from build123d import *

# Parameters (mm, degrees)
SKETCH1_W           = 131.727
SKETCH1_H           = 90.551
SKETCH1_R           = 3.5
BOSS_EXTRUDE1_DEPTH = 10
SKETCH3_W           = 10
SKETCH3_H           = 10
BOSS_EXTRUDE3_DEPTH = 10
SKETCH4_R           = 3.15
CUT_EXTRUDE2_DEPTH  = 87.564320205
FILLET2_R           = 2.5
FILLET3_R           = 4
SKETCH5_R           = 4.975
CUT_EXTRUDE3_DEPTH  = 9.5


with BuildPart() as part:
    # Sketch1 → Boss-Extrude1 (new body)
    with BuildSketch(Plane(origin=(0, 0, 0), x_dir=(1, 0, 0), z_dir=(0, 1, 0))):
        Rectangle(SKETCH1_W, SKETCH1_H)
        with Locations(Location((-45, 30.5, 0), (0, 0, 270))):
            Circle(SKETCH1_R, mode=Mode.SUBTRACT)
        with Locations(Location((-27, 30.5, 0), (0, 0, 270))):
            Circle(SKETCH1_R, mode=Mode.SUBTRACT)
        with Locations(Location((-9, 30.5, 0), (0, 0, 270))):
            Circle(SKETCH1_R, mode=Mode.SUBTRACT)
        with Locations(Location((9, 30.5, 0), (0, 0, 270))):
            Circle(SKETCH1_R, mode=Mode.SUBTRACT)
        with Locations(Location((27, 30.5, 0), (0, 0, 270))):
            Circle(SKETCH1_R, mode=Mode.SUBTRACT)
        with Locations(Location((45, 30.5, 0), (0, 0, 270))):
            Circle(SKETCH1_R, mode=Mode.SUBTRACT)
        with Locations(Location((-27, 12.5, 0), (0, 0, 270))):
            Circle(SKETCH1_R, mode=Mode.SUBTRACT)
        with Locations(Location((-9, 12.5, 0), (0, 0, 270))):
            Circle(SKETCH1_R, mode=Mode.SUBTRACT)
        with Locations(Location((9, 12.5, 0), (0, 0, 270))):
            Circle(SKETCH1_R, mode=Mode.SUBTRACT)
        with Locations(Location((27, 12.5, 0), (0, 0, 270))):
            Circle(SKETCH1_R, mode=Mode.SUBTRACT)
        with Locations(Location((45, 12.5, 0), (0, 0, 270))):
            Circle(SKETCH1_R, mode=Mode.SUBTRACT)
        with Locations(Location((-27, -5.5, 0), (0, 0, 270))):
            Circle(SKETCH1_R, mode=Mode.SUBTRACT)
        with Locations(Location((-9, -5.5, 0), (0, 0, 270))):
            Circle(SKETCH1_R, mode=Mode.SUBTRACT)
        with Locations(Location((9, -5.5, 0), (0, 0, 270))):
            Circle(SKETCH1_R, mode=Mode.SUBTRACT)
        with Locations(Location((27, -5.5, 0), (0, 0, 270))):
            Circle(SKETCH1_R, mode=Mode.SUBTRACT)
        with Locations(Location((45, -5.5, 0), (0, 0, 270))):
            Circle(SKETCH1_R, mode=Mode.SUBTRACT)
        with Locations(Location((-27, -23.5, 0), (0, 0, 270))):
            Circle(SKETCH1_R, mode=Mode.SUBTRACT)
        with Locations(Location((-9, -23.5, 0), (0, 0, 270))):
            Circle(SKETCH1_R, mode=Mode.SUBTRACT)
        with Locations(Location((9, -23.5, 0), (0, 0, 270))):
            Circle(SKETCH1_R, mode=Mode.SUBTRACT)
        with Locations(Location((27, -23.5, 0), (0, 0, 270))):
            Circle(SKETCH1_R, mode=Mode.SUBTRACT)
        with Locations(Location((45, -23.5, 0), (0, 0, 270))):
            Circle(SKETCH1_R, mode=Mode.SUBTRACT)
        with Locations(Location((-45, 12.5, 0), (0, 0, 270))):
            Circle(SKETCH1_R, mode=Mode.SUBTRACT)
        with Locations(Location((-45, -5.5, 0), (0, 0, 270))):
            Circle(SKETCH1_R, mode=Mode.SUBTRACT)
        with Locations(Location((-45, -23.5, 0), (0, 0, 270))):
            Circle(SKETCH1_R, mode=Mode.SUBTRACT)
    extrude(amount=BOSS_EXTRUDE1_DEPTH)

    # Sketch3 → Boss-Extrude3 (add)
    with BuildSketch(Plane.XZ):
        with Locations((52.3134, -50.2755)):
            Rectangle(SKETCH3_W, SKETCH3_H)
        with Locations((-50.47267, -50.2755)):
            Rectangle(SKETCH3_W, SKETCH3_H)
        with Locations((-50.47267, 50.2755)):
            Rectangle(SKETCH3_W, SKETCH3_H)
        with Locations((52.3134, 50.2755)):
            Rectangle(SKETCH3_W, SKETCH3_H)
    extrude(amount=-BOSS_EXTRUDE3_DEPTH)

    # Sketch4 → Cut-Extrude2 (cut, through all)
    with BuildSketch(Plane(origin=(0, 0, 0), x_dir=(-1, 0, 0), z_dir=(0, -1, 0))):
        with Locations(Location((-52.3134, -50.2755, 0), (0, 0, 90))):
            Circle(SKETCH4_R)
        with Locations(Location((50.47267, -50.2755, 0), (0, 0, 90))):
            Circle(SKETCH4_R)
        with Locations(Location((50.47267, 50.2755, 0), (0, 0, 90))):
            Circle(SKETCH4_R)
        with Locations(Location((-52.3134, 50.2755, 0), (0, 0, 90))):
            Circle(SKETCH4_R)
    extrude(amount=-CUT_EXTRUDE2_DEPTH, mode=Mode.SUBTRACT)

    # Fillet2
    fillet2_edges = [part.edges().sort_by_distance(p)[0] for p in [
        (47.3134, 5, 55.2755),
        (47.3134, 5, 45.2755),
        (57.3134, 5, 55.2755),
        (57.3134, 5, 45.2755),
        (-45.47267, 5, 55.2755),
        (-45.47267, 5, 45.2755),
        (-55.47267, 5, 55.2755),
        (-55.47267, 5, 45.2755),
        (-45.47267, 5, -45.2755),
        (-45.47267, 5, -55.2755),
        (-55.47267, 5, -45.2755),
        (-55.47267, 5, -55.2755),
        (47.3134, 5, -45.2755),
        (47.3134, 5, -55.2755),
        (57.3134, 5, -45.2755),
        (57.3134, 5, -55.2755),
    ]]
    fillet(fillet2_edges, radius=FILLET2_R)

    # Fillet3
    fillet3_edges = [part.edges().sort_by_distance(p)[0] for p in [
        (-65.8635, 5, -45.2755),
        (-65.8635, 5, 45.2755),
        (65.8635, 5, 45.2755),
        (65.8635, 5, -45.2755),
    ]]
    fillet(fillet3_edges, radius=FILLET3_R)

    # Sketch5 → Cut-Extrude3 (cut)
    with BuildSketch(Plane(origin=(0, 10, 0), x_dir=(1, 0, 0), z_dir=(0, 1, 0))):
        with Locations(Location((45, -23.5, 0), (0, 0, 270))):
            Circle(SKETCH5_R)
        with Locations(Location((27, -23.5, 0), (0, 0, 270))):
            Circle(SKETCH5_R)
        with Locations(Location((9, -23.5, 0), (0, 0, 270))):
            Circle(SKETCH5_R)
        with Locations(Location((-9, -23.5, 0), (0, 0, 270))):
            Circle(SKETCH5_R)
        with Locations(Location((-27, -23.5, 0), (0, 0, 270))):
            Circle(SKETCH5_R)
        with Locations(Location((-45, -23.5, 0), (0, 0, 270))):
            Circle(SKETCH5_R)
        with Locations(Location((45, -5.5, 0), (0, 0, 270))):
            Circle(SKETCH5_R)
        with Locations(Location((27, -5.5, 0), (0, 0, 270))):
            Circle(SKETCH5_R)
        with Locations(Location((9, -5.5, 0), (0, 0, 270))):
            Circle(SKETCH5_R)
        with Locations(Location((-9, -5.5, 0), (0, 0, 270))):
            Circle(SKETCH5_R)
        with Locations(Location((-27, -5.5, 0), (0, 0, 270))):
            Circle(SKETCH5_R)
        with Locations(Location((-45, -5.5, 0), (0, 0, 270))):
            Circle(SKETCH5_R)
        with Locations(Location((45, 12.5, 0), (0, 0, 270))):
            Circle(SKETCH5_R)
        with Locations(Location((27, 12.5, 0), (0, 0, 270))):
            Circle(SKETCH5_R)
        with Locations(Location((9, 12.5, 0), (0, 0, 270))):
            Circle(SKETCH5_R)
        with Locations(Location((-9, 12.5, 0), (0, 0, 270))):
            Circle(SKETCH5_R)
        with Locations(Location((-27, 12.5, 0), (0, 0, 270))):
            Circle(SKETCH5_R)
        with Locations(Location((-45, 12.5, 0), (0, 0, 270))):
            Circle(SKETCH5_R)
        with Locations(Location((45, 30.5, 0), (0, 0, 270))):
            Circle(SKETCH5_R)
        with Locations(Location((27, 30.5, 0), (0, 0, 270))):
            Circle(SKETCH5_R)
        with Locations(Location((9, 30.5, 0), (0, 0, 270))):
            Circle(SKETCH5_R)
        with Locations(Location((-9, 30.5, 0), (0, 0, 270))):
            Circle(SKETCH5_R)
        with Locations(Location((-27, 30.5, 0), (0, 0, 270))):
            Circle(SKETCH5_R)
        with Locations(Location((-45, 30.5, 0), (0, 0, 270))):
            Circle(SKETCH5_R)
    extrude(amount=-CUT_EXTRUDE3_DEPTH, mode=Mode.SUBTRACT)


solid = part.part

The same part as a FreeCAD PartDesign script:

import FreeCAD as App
import Part
import Sketcher
from FreeCAD import Vector


def edges_at(feature, points):
    """Names of the edges that pass closest to the given points."""
    edges = feature.Shape.Edges
    near = lambda p: min(range(len(edges)), key=lambda i: edges[i].distToShape(Part.Vertex(*p))[0])
    return sorted({f"Edge{near(p) + 1}" for p in points})

doc = App.newDocument("Part")
params = doc.addObject("Spreadsheet::Sheet", "Params")
for row, (alias, value) in enumerate([
    ("sketch1_diameter", "7 mm"),
    ("pad1_length", "10 mm"),
    ("sketch2_width", "10 mm"),
    ("pad2_length", "10 mm"),
    ("sketch3_diameter", "6.3 mm"),
    ("fillet_radius", "2.5 mm"),
    ("fillet2_radius", "4 mm"),
    ("sketch4_diameter", "9.95 mm"),
    ("pocket2_length", "9.5 mm"),
], start=1):
    params.set(f"A{row}", alias)
    params.set(f"B{row}", "=" + value)
    params.setAlias(f"B{row}", alias)

body = doc.addObject("PartDesign::Body", "Body")

# Sketch on XZ plane
sketch1 = body.newObject("Sketcher::SketchObject", "Sketch")
sketch1.AttachmentSupport = (doc.getObject("XZ_Plane"), [""])
sketch1.MapMode = "FlatFace"
sketch1.addGeometry(Part.LineSegment(Vector(-65.8635, -45.2755, 0), Vector(-65.8635, 45.2755, 0)), False)
sketch1.addGeometry(Part.LineSegment(Vector(-65.8635, 45.2755, 0), Vector(65.8635, 45.2755, 0)), False)
sketch1.addGeometry(Part.LineSegment(Vector(65.8635, 45.2755, 0), Vector(65.8635, -45.2755, 0)), False)
sketch1.addGeometry(Part.LineSegment(Vector(65.8635, -45.2755, 0), Vector(-65.8635, -45.2755, 0)), False)
sketch1.addGeometry(Part.Circle(Vector(-45, 23.5, 0), Vector(0, 0, 1), 3.5), False)
sketch1.addGeometry(Part.Circle(Vector(-27, 23.5, 0), Vector(0, 0, 1), 3.5), False)
sketch1.addGeometry(Part.Circle(Vector(-9, 23.5, 0), Vector(0, 0, 1), 3.5), False)
sketch1.addGeometry(Part.Circle(Vector(-45, 5.5, 0), Vector(0, 0, 1), 3.5), False)
sketch1.addGeometry(Part.Circle(Vector(-27, 5.5, 0), Vector(0, 0, 1), 3.5), False)
sketch1.addGeometry(Part.Circle(Vector(-9, 5.5, 0), Vector(0, 0, 1), 3.5), False)
sketch1.addGeometry(Part.Circle(Vector(9, 23.5, 0), Vector(0, 0, 1), 3.5), False)
sketch1.addGeometry(Part.Circle(Vector(27, 23.5, 0), Vector(0, 0, 1), 3.5), False)
sketch1.addGeometry(Part.Circle(Vector(45, 23.5, 0), Vector(0, 0, 1), 3.5), False)
sketch1.addGeometry(Part.Circle(Vector(9, 5.5, 0), Vector(0, 0, 1), 3.5), False)
sketch1.addGeometry(Part.Circle(Vector(27, 5.5, 0), Vector(0, 0, 1), 3.5), False)
sketch1.addGeometry(Part.Circle(Vector(45, 5.5, 0), Vector(0, 0, 1), 3.5), False)
sketch1.addGeometry(Part.Circle(Vector(-45, -12.5, 0), Vector(0, 0, 1), 3.5), False)
sketch1.addGeometry(Part.Circle(Vector(-27, -12.5, 0), Vector(0, 0, 1), 3.5), False)
sketch1.addGeometry(Part.Circle(Vector(-9, -12.5, 0), Vector(0, 0, 1), 3.5), False)
sketch1.addGeometry(Part.Circle(Vector(-45, -30.5, 0), Vector(0, 0, 1), 3.5), False)
sketch1.addGeometry(Part.Circle(Vector(-27, -30.5, 0), Vector(0, 0, 1), 3.5), False)
sketch1.addGeometry(Part.Circle(Vector(-9, -30.5, 0), Vector(0, 0, 1), 3.5), False)
sketch1.addGeometry(Part.Circle(Vector(9, -12.5, 0), Vector(0, 0, 1), 3.5), False)
sketch1.addGeometry(Part.Circle(Vector(27, -12.5, 0), Vector(0, 0, 1), 3.5), False)
sketch1.addGeometry(Part.Circle(Vector(45, -12.5, 0), Vector(0, 0, 1), 3.5), False)
sketch1.addGeometry(Part.Circle(Vector(9, -30.5, 0), Vector(0, 0, 1), 3.5), False)
sketch1.addGeometry(Part.Circle(Vector(27, -30.5, 0), Vector(0, 0, 1), 3.5), False)
sketch1.addGeometry(Part.Circle(Vector(45, -30.5, 0), Vector(0, 0, 1), 3.5), False)
sketch1.addConstraint(Sketcher.Constraint("Coincident", 0, 2, 1, 1))
sketch1.addConstraint(Sketcher.Constraint("Coincident", 1, 2, 2, 1))
sketch1.addConstraint(Sketcher.Constraint("Coincident", 2, 2, 3, 1))
sketch1.addConstraint(Sketcher.Constraint("Coincident", 3, 2, 0, 1))
sketch1.addConstraint(Sketcher.Constraint("Vertical", 0))
sketch1.addConstraint(Sketcher.Constraint("Horizontal", 1))
sketch1.addConstraint(Sketcher.Constraint("Vertical", 2))
sketch1.addConstraint(Sketcher.Constraint("Horizontal", 3))
sketch1.addConstraint(Sketcher.Constraint("Equal", 4, 5))
sketch1.addConstraint(Sketcher.Constraint("Equal", 5, 6))
sketch1.addConstraint(Sketcher.Constraint("Equal", 6, 7))
sketch1.addConstraint(Sketcher.Constraint("Equal", 7, 8))
sketch1.addConstraint(Sketcher.Constraint("Equal", 8, 9))
sketch1.addConstraint(Sketcher.Constraint("Equal", 9, 10))
sketch1.addConstraint(Sketcher.Constraint("Equal", 10, 11))
sketch1.addConstraint(Sketcher.Constraint("Equal", 11, 12))
sketch1.addConstraint(Sketcher.Constraint("Equal", 12, 13))
sketch1.addConstraint(Sketcher.Constraint("Equal", 13, 14))
sketch1.addConstraint(Sketcher.Constraint("Equal", 14, 15))
sketch1.addConstraint(Sketcher.Constraint("Equal", 15, 16))
sketch1.addConstraint(Sketcher.Constraint("Equal", 16, 17))
sketch1.addConstraint(Sketcher.Constraint("Equal", 17, 18))
sketch1.addConstraint(Sketcher.Constraint("Equal", 18, 19))
sketch1.addConstraint(Sketcher.Constraint("Equal", 19, 20))
sketch1.addConstraint(Sketcher.Constraint("Equal", 20, 21))
sketch1.addConstraint(Sketcher.Constraint("Equal", 21, 22))
sketch1.addConstraint(Sketcher.Constraint("Equal", 22, 23))
sketch1.addConstraint(Sketcher.Constraint("Equal", 23, 24))
sketch1.addConstraint(Sketcher.Constraint("Equal", 24, 25))
sketch1.addConstraint(Sketcher.Constraint("Equal", 25, 26))
sketch1.addConstraint(Sketcher.Constraint("Equal", 26, 27))
sketch1.addConstraint(Sketcher.Constraint("Symmetric", 0, 2, 2, 2, -1, 1))
sketch1.addConstraint(Sketcher.Constraint("Symmetric", 6, 3, 10, 3, -2))
sketch1.addConstraint(Sketcher.Constraint("Symmetric", 5, 3, 11, 3, -2))
sketch1.addConstraint(Sketcher.Constraint("Symmetric", 4, 3, 12, 3, -2))
sketch1.addConstraint(Sketcher.Constraint("Symmetric", 9, 3, 13, 3, -2))
sketch1.addConstraint(Sketcher.Constraint("Symmetric", 8, 3, 14, 3, -2))
sketch1.addConstraint(Sketcher.Constraint("Symmetric", 7, 3, 15, 3, -2))
sketch1.addConstraint(Sketcher.Constraint("Symmetric", 18, 3, 22, 3, -2))
sketch1.addConstraint(Sketcher.Constraint("Symmetric", 17, 3, 23, 3, -2))
sketch1.addConstraint(Sketcher.Constraint("Symmetric", 16, 3, 24, 3, -2))
sketch1.addConstraint(Sketcher.Constraint("Symmetric", 21, 3, 25, 3, -2))
sketch1.addConstraint(Sketcher.Constraint("Symmetric", 20, 3, 26, 3, -2))
sketch1.addConstraint(Sketcher.Constraint("Symmetric", 19, 3, 27, 3, -2))
sketch1.addConstraint(Sketcher.Constraint("Horizontal", 4, 3, 5, 3))
sketch1.addConstraint(Sketcher.Constraint("Horizontal", 5, 3, 6, 3))
sketch1.addConstraint(Sketcher.Constraint("Horizontal", 7, 3, 8, 3))
sketch1.addConstraint(Sketcher.Constraint("Horizontal", 8, 3, 9, 3))
sketch1.addConstraint(Sketcher.Constraint("Horizontal", 16, 3, 17, 3))
sketch1.addConstraint(Sketcher.Constraint("Horizontal", 17, 3, 18, 3))
sketch1.addConstraint(Sketcher.Constraint("Horizontal", 19, 3, 20, 3))
sketch1.addConstraint(Sketcher.Constraint("Horizontal", 20, 3, 21, 3))
sketch1.addConstraint(Sketcher.Constraint("Vertical", 4, 3, 7, 3))
sketch1.addConstraint(Sketcher.Constraint("Vertical", 5, 3, 8, 3))
sketch1.addConstraint(Sketcher.Constraint("Vertical", 6, 3, 9, 3))
sketch1.addConstraint(Sketcher.Constraint("Vertical", 7, 3, 16, 3))
sketch1.addConstraint(Sketcher.Constraint("Vertical", 8, 3, 17, 3))
sketch1.addConstraint(Sketcher.Constraint("Vertical", 9, 3, 18, 3))
sketch1.addConstraint(Sketcher.Constraint("Vertical", 16, 3, 19, 3))
sketch1.addConstraint(Sketcher.Constraint("Vertical", 17, 3, 20, 3))
sketch1.addConstraint(Sketcher.Constraint("Vertical", 18, 3, 21, 3))
sketch1.addConstraint(Sketcher.Constraint("Diameter", 4, 7.0))
sketch1.addConstraint(Sketcher.Constraint("DistanceX", 4, 3, -1, 1, 45.0))
sketch1.addConstraint(Sketcher.Constraint("DistanceX", 5, 3, -1, 1, 27.0))
sketch1.addConstraint(Sketcher.Constraint("DistanceX", 6, 3, -1, 1, 9.0))
sketch1.addConstraint(Sketcher.Constraint("DistanceY", 7, 3, 4, 3, 18.0))
sketch1.addConstraint(Sketcher.Constraint("DistanceY", 16, 3, 7, 3, 18.0))
sketch1.addConstraint(Sketcher.Constraint("DistanceY", 19, 3, 16, 3, 18.0))
sketch1.addConstraint(Sketcher.Constraint("DistanceY", -1, 1, 4, 3, 23.5))
sketch1.addConstraint(Sketcher.Constraint("DistanceX", 1, 1, 1, 2, 131.727))
sketch1.addConstraint(Sketcher.Constraint("DistanceY", 0, 1, 0, 2, 90.551))
sketch1.setExpression("Constraints[61]", "Params.sketch1_diameter")
pad1 = body.newObject("PartDesign::Pad", "Pad")
pad1.Profile = sketch1
pad1.setExpression("Length", "Params.pad1_length")
pad1.Reversed = True

# Sketch on XZ plane
sketch2 = body.newObject("Sketcher::SketchObject", "Sketch001")
sketch2.AttachmentSupport = (doc.getObject("XZ_Plane"), [""])
sketch2.MapMode = "FlatFace"
sketch2.addGeometry(Part.LineSegment(Vector(47.3134, -45.2755, 0), Vector(47.3134, -55.2755, 0)), False)
sketch2.addGeometry(Part.LineSegment(Vector(47.3134, -55.2755, 0), Vector(57.3134, -55.2755, 0)), False)
sketch2.addGeometry(Part.LineSegment(Vector(57.3134, -55.2755, 0), Vector(57.3134, -45.2755, 0)), False)
sketch2.addGeometry(Part.LineSegment(Vector(57.3134, -45.2755, 0), Vector(47.3134, -45.2755, 0)), False)
sketch2.addGeometry(Part.LineSegment(Vector(-55.47267, -45.2755, 0), Vector(-55.47267, -55.2755, 0)), False)
sketch2.addGeometry(Part.LineSegment(Vector(-55.47267, -55.2755, 0), Vector(-45.47267, -55.2755, 0)), False)
sketch2.addGeometry(Part.LineSegment(Vector(-45.47267, -55.2755, 0), Vector(-45.47267, -45.2755, 0)), False)
sketch2.addGeometry(Part.LineSegment(Vector(-45.47267, -45.2755, 0), Vector(-55.47267, -45.2755, 0)), False)
sketch2.addGeometry(Part.LineSegment(Vector(-55.47267, 55.2755, 0), Vector(-55.47267, 45.2755, 0)), False)
sketch2.addGeometry(Part.LineSegment(Vector(-55.47267, 45.2755, 0), Vector(-45.47267, 45.2755, 0)), False)
sketch2.addGeometry(Part.LineSegment(Vector(-45.47267, 45.2755, 0), Vector(-45.47267, 55.2755, 0)), False)
sketch2.addGeometry(Part.LineSegment(Vector(-45.47267, 55.2755, 0), Vector(-55.47267, 55.2755, 0)), False)
sketch2.addGeometry(Part.LineSegment(Vector(47.3134, 55.2755, 0), Vector(47.3134, 45.2755, 0)), False)
sketch2.addGeometry(Part.LineSegment(Vector(47.3134, 45.2755, 0), Vector(57.3134, 45.2755, 0)), False)
sketch2.addGeometry(Part.LineSegment(Vector(57.3134, 45.2755, 0), Vector(57.3134, 55.2755, 0)), False)
sketch2.addGeometry(Part.LineSegment(Vector(57.3134, 55.2755, 0), Vector(47.3134, 55.2755, 0)), False)
sketch2.addConstraint(Sketcher.Constraint("Coincident", 0, 2, 1, 1))
sketch2.addConstraint(Sketcher.Constraint("Coincident", 1, 2, 2, 1))
sketch2.addConstraint(Sketcher.Constraint("Coincident", 2, 2, 3, 1))
sketch2.addConstraint(Sketcher.Constraint("Coincident", 3, 2, 0, 1))
sketch2.addConstraint(Sketcher.Constraint("Coincident", 4, 2, 5, 1))
sketch2.addConstraint(Sketcher.Constraint("Coincident", 5, 2, 6, 1))
sketch2.addConstraint(Sketcher.Constraint("Coincident", 6, 2, 7, 1))
sketch2.addConstraint(Sketcher.Constraint("Coincident", 7, 2, 4, 1))
sketch2.addConstraint(Sketcher.Constraint("Coincident", 8, 2, 9, 1))
sketch2.addConstraint(Sketcher.Constraint("Coincident", 9, 2, 10, 1))
sketch2.addConstraint(Sketcher.Constraint("Coincident", 10, 2, 11, 1))
sketch2.addConstraint(Sketcher.Constraint("Coincident", 11, 2, 8, 1))
sketch2.addConstraint(Sketcher.Constraint("Coincident", 12, 2, 13, 1))
sketch2.addConstraint(Sketcher.Constraint("Coincident", 13, 2, 14, 1))
sketch2.addConstraint(Sketcher.Constraint("Coincident", 14, 2, 15, 1))
sketch2.addConstraint(Sketcher.Constraint("Coincident", 15, 2, 12, 1))
sketch2.addConstraint(Sketcher.Constraint("Vertical", 0))
sketch2.addConstraint(Sketcher.Constraint("Horizontal", 1))
sketch2.addConstraint(Sketcher.Constraint("Vertical", 2))
sketch2.addConstraint(Sketcher.Constraint("Horizontal", 3))
sketch2.addConstraint(Sketcher.Constraint("Vertical", 4))
sketch2.addConstraint(Sketcher.Constraint("Horizontal", 5))
sketch2.addConstraint(Sketcher.Constraint("Vertical", 6))
sketch2.addConstraint(Sketcher.Constraint("Horizontal", 7))
sketch2.addConstraint(Sketcher.Constraint("Vertical", 8))
sketch2.addConstraint(Sketcher.Constraint("Horizontal", 9))
sketch2.addConstraint(Sketcher.Constraint("Vertical", 10))
sketch2.addConstraint(Sketcher.Constraint("Horizontal", 11))
sketch2.addConstraint(Sketcher.Constraint("Vertical", 12))
sketch2.addConstraint(Sketcher.Constraint("Horizontal", 13))
sketch2.addConstraint(Sketcher.Constraint("Vertical", 14))
sketch2.addConstraint(Sketcher.Constraint("Horizontal", 15))
sketch2.addConstraint(Sketcher.Constraint("Symmetric", 7, 2, 8, 2, -1))
sketch2.addConstraint(Sketcher.Constraint("Symmetric", 5, 2, 10, 2, -1))
sketch2.addConstraint(Sketcher.Constraint("Symmetric", 3, 2, 12, 2, -1))
sketch2.addConstraint(Sketcher.Constraint("Symmetric", 1, 2, 14, 2, -1))
sketch2.addConstraint(Sketcher.Constraint("Horizontal", 1, 2, 4, 2))
sketch2.addConstraint(Sketcher.Constraint("Horizontal", 3, 2, 6, 2))
sketch2.addConstraint(Sketcher.Constraint("Equal", 3, 5))
sketch2.addConstraint(Sketcher.Constraint("Equal", 15, 0))
sketch2.addConstraint(Sketcher.Constraint("DistanceX", 1, 1, 1, 2, 10.0))
sketch2.addConstraint(Sketcher.Constraint("DistanceY", 7, 2, 8, 2, 90.551))
sketch2.addConstraint(Sketcher.Constraint("DistanceX", -1, 1, 0, 2, 47.3134))
sketch2.addConstraint(Sketcher.Constraint("DistanceX", 4, 2, -1, 1, 55.47267))
sketch2.setExpression("Constraints[40]", "Params.sketch2_width")
pad2 = body.newObject("PartDesign::Pad", "Pad001")
pad2.Profile = sketch2
pad2.setExpression("Length", "Params.pad2_length")
pad2.Reversed = True

# Sketch on XZ plane
sketch3 = body.newObject("Sketcher::SketchObject", "Sketch002")
sketch3.AttachmentSupport = (doc.getObject("XZ_Plane"), [""])
sketch3.MapMode = "FlatFace"
sketch3.addGeometry(Part.Circle(Vector(52.3134, 50.2755, 0), Vector(0, 0, 1), 3.15), False)
sketch3.addGeometry(Part.Circle(Vector(-50.47267, 50.2755, 0), Vector(0, 0, 1), 3.15), False)
sketch3.addGeometry(Part.Circle(Vector(-50.47267, -50.2755, 0), Vector(0, 0, 1), 3.15), False)
sketch3.addGeometry(Part.Circle(Vector(52.3134, -50.2755, 0), Vector(0, 0, 1), 3.15), False)
sketch3.addConstraint(Sketcher.Constraint("Equal", 0, 1))
sketch3.addConstraint(Sketcher.Constraint("Equal", 1, 2))
sketch3.addConstraint(Sketcher.Constraint("Equal", 2, 3))
sketch3.addConstraint(Sketcher.Constraint("Symmetric", 1, 3, 2, 3, -1))
sketch3.addConstraint(Sketcher.Constraint("Symmetric", 0, 3, 3, 3, -1))
sketch3.addConstraint(Sketcher.Constraint("Horizontal", 0, 3, 1, 3))
sketch3.addConstraint(Sketcher.Constraint("Diameter", 0, 6.3))
sketch3.addConstraint(Sketcher.Constraint("DistanceY", 2, 3, 1, 3, 100.551))
sketch3.addConstraint(Sketcher.Constraint("DistanceX", -1, 1, 0, 3, 52.3134))
sketch3.addConstraint(Sketcher.Constraint("DistanceX", 1, 3, -1, 1, 50.47267))
sketch3.setExpression("Constraints[6]", "Params.sketch3_diameter")
pocket1 = body.newObject("PartDesign::Pocket", "Pocket")
pocket1.Profile = sketch3
pocket1.Type = "ThroughAll"
doc.recompute()

fillet = body.newObject("PartDesign::Fillet", "Fillet")
fillet.Base = (pocket1, edges_at(pocket1, [
    (47.313, 5, 55.276),
    (47.313, 5, 45.276),
    (57.313, 5, 55.276),
    (57.313, 5, 45.276),
    (-45.473, 5, 55.276),
    (-45.473, 5, 45.276),
    (-55.473, 5, 55.276),
    (-55.473, 5, 45.276),
    (-45.473, 5, -45.276),
    (-45.473, 5, -55.276),
    (-55.473, 5, -45.276),
    (-55.473, 5, -55.276),
    (47.313, 5, -45.276),
    (47.313, 5, -55.276),
    (57.313, 5, -45.276),
    (57.313, 5, -55.276),
]))
fillet.setExpression("Radius", "Params.fillet_radius")
doc.recompute()

fillet2 = body.newObject("PartDesign::Fillet", "Fillet001")
fillet2.Base = (fillet, edges_at(fillet, [
    (-65.864, 5, -45.276),
    (-65.864, 5, 45.276),
    (65.864, 5, 45.276),
    (65.864, 5, -45.276),
]))
fillet2.setExpression("Radius", "Params.fillet2_radius")

# Sketch on XZ plane
sketch4 = body.newObject("Sketcher::SketchObject", "Sketch003")
sketch4.AttachmentSupport = (doc.getObject("XZ_Plane"), [""])
sketch4.MapMode = "FlatFace"
sketch4.AttachmentOffset = App.Placement(Vector(0, 0, -10), App.Rotation())
sketch4.addGeometry(Part.Circle(Vector(45, 23.5, 0), Vector(0, 0, 1), 4.975), False)
sketch4.addGeometry(Part.Circle(Vector(27, 23.5, 0), Vector(0, 0, 1), 4.975), False)
sketch4.addGeometry(Part.Circle(Vector(9, 23.5, 0), Vector(0, 0, 1), 4.975), False)
sketch4.addGeometry(Part.Circle(Vector(-9, 23.5, 0), Vector(0, 0, 1), 4.975), False)
sketch4.addGeometry(Part.Circle(Vector(-27, 23.5, 0), Vector(0, 0, 1), 4.975), False)
sketch4.addGeometry(Part.Circle(Vector(-45, 23.5, 0), Vector(0, 0, 1), 4.975), False)
sketch4.addGeometry(Part.Circle(Vector(45, 5.5, 0), Vector(0, 0, 1), 4.975), False)
sketch4.addGeometry(Part.Circle(Vector(27, 5.5, 0), Vector(0, 0, 1), 4.975), False)
sketch4.addGeometry(Part.Circle(Vector(9, 5.5, 0), Vector(0, 0, 1), 4.975), False)
sketch4.addGeometry(Part.Circle(Vector(-9, 5.5, 0), Vector(0, 0, 1), 4.975), False)
sketch4.addGeometry(Part.Circle(Vector(-27, 5.5, 0), Vector(0, 0, 1), 4.975), False)
sketch4.addGeometry(Part.Circle(Vector(-45, 5.5, 0), Vector(0, 0, 1), 4.975), False)
sketch4.addGeometry(Part.Circle(Vector(45, -12.5, 0), Vector(0, 0, 1), 4.975), False)
sketch4.addGeometry(Part.Circle(Vector(27, -12.5, 0), Vector(0, 0, 1), 4.975), False)
sketch4.addGeometry(Part.Circle(Vector(9, -12.5, 0), Vector(0, 0, 1), 4.975), False)
sketch4.addGeometry(Part.Circle(Vector(-9, -12.5, 0), Vector(0, 0, 1), 4.975), False)
sketch4.addGeometry(Part.Circle(Vector(-27, -12.5, 0), Vector(0, 0, 1), 4.975), False)
sketch4.addGeometry(Part.Circle(Vector(-45, -12.5, 0), Vector(0, 0, 1), 4.975), False)
sketch4.addGeometry(Part.Circle(Vector(45, -30.5, 0), Vector(0, 0, 1), 4.975), False)
sketch4.addGeometry(Part.Circle(Vector(27, -30.5, 0), Vector(0, 0, 1), 4.975), False)
sketch4.addGeometry(Part.Circle(Vector(9, -30.5, 0), Vector(0, 0, 1), 4.975), False)
sketch4.addGeometry(Part.Circle(Vector(-9, -30.5, 0), Vector(0, 0, 1), 4.975), False)
sketch4.addGeometry(Part.Circle(Vector(-27, -30.5, 0), Vector(0, 0, 1), 4.975), False)
sketch4.addGeometry(Part.Circle(Vector(-45, -30.5, 0), Vector(0, 0, 1), 4.975), False)
sketch4.addConstraint(Sketcher.Constraint("Equal", 0, 1))
sketch4.addConstraint(Sketcher.Constraint("Equal", 1, 2))
sketch4.addConstraint(Sketcher.Constraint("Equal", 2, 3))
sketch4.addConstraint(Sketcher.Constraint("Equal", 3, 4))
sketch4.addConstraint(Sketcher.Constraint("Equal", 4, 5))
sketch4.addConstraint(Sketcher.Constraint("Equal", 5, 6))
sketch4.addConstraint(Sketcher.Constraint("Equal", 6, 7))
sketch4.addConstraint(Sketcher.Constraint("Equal", 7, 8))
sketch4.addConstraint(Sketcher.Constraint("Equal", 8, 9))
sketch4.addConstraint(Sketcher.Constraint("Equal", 9, 10))
sketch4.addConstraint(Sketcher.Constraint("Equal", 10, 11))
sketch4.addConstraint(Sketcher.Constraint("Equal", 11, 12))
sketch4.addConstraint(Sketcher.Constraint("Equal", 12, 13))
sketch4.addConstraint(Sketcher.Constraint("Equal", 13, 14))
sketch4.addConstraint(Sketcher.Constraint("Equal", 14, 15))
sketch4.addConstraint(Sketcher.Constraint("Equal", 15, 16))
sketch4.addConstraint(Sketcher.Constraint("Equal", 16, 17))
sketch4.addConstraint(Sketcher.Constraint("Equal", 17, 18))
sketch4.addConstraint(Sketcher.Constraint("Equal", 18, 19))
sketch4.addConstraint(Sketcher.Constraint("Equal", 19, 20))
sketch4.addConstraint(Sketcher.Constraint("Equal", 20, 21))
sketch4.addConstraint(Sketcher.Constraint("Equal", 21, 22))
sketch4.addConstraint(Sketcher.Constraint("Equal", 22, 23))
sketch4.addConstraint(Sketcher.Constraint("Symmetric", 2, 3, 3, 3, -2))
sketch4.addConstraint(Sketcher.Constraint("Symmetric", 1, 3, 4, 3, -2))
sketch4.addConstraint(Sketcher.Constraint("Symmetric", 0, 3, 5, 3, -2))
sketch4.addConstraint(Sketcher.Constraint("Symmetric", 8, 3, 9, 3, -2))
sketch4.addConstraint(Sketcher.Constraint("Symmetric", 7, 3, 10, 3, -2))
sketch4.addConstraint(Sketcher.Constraint("Symmetric", 6, 3, 11, 3, -2))
sketch4.addConstraint(Sketcher.Constraint("Symmetric", 14, 3, 15, 3, -2))
sketch4.addConstraint(Sketcher.Constraint("Symmetric", 13, 3, 16, 3, -2))
sketch4.addConstraint(Sketcher.Constraint("Symmetric", 12, 3, 17, 3, -2))
sketch4.addConstraint(Sketcher.Constraint("Symmetric", 20, 3, 21, 3, -2))
sketch4.addConstraint(Sketcher.Constraint("Symmetric", 19, 3, 22, 3, -2))
sketch4.addConstraint(Sketcher.Constraint("Symmetric", 18, 3, 23, 3, -2))
sketch4.addConstraint(Sketcher.Constraint("Horizontal", 0, 3, 1, 3))
sketch4.addConstraint(Sketcher.Constraint("Horizontal", 1, 3, 2, 3))
sketch4.addConstraint(Sketcher.Constraint("Horizontal", 6, 3, 7, 3))
sketch4.addConstraint(Sketcher.Constraint("Horizontal", 7, 3, 8, 3))
sketch4.addConstraint(Sketcher.Constraint("Horizontal", 12, 3, 13, 3))
sketch4.addConstraint(Sketcher.Constraint("Horizontal", 13, 3, 14, 3))
sketch4.addConstraint(Sketcher.Constraint("Horizontal", 18, 3, 19, 3))
sketch4.addConstraint(Sketcher.Constraint("Horizontal", 19, 3, 20, 3))
sketch4.addConstraint(Sketcher.Constraint("Vertical", 0, 3, 6, 3))
sketch4.addConstraint(Sketcher.Constraint("Vertical", 1, 3, 7, 3))
sketch4.addConstraint(Sketcher.Constraint("Vertical", 2, 3, 8, 3))
sketch4.addConstraint(Sketcher.Constraint("Vertical", 6, 3, 12, 3))
sketch4.addConstraint(Sketcher.Constraint("Vertical", 7, 3, 13, 3))
sketch4.addConstraint(Sketcher.Constraint("Vertical", 8, 3, 14, 3))
sketch4.addConstraint(Sketcher.Constraint("Vertical", 12, 3, 18, 3))
sketch4.addConstraint(Sketcher.Constraint("Vertical", 13, 3, 19, 3))
sketch4.addConstraint(Sketcher.Constraint("Vertical", 14, 3, 20, 3))
sketch4.addConstraint(Sketcher.Constraint("Diameter", 0, 9.95))
sketch4.addConstraint(Sketcher.Constraint("DistanceX", -1, 1, 0, 3, 45.0))
sketch4.addConstraint(Sketcher.Constraint("DistanceX", -1, 1, 1, 3, 27.0))
sketch4.addConstraint(Sketcher.Constraint("DistanceX", -1, 1, 2, 3, 9.0))
sketch4.addConstraint(Sketcher.Constraint("DistanceY", 6, 3, 0, 3, 18.0))
sketch4.addConstraint(Sketcher.Constraint("DistanceY", 12, 3, 6, 3, 18.0))
sketch4.addConstraint(Sketcher.Constraint("DistanceY", 18, 3, 12, 3, 18.0))
sketch4.addConstraint(Sketcher.Constraint("DistanceY", -1, 1, 0, 3, 23.5))
sketch4.setExpression("Constraints[52]", "Params.sketch4_diameter")
pocket2 = body.newObject("PartDesign::Pocket", "Pocket001")
pocket2.Profile = sketch4
pocket2.setExpression("Length", "Params.pocket2_length")
pocket2.Reversed = True

doc.recompute()
